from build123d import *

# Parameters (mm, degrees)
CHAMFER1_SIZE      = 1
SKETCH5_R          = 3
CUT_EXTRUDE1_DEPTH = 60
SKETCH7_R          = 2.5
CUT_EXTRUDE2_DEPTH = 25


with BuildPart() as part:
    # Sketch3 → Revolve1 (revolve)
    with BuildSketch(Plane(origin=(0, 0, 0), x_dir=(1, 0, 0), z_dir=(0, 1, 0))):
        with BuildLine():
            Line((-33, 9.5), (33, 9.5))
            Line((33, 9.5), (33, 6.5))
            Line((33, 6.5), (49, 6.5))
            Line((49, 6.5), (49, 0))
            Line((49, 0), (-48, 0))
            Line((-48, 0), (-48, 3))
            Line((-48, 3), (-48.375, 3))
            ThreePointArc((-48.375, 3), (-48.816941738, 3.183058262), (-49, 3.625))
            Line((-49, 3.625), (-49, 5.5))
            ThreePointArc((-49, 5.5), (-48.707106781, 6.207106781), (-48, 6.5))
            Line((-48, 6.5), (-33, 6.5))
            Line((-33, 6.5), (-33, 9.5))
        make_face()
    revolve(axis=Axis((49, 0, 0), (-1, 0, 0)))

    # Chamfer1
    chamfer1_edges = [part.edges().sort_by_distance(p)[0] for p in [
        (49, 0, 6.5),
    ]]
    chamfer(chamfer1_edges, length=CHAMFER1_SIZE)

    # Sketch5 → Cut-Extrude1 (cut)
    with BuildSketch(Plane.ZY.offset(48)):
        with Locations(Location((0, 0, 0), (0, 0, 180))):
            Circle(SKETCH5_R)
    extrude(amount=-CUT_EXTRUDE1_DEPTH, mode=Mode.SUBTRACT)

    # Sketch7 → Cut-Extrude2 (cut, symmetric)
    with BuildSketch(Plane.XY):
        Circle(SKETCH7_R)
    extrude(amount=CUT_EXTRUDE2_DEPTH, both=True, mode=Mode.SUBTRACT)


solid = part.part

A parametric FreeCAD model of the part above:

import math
import FreeCAD as App
import Part
import Sketcher
Q = App.Units.Quantity


def edges_at(feature, points):
    """Names of the edges that pass closest to the given points."""
    edges = feature.Shape.Edges
    near = lambda p: min(range(len(edges)), key=lambda i: edges[i].distToShape(Part.Vertex(*p))[0])
    return sorted({f"Edge{near(p) + 1}" for p in points})

doc = App.newDocument("Part")
body = doc.addObject("PartDesign::Body", "Body")

sketch1 = body.newObject("Sketcher::SketchObject", "Sketch")
sketch1.AttachmentSupport = (doc.getObject("XZ_Plane"), [""])
sketch1.MapMode = "FlatFace"
sketch1.addGeometry([
    Part.LineSegment(App.Vector(33, -9.5, 0), App.Vector(-33, -9.5, 0)),
    Part.LineSegment(App.Vector(-33, -9.5, 0), App.Vector(-33, -6.5, 0)),
    Part.LineSegment(App.Vector(-33, -6.5, 0), App.Vector(-48, -6.5, 0)),
    Part.ArcOfCircle(Part.Circle(App.Vector(-48, -5.5, 0), App.Vector(0, 0, 1), 1), math.radians(-180), math.radians(-90)),
    Part.LineSegment(App.Vector(-49, -5.5, 0), App.Vector(-49, -3.625, 0)),
    Part.ArcOfCircle(Part.Circle(App.Vector(-48.375, -3.625, 0), App.Vector(0, 0, 1), 0.625), math.radians(90), math.radians(180)),
    Part.LineSegment(App.Vector(-48.375, -3, 0), App.Vector(-48, -3, 0)),
    Part.LineSegment(App.Vector(-48, -3, 0), App.Vector(-48, 0, 0)),
    Part.LineSegment(App.Vector(-48, 0, 0), App.Vector(49, 0, 0)),
    Part.LineSegment(App.Vector(49, 0, 0), App.Vector(49, -6.5, 0)),
    Part.LineSegment(App.Vector(49, -6.5, 0), App.Vector(33, -6.5, 0)),
    Part.LineSegment(App.Vector(33, -6.5, 0), App.Vector(33, -9.5, 0)),
], False)
sketch1.addConstraint([
    Sketcher.Constraint("Coincident", 0, 2, 1, 1),
    Sketcher.Constraint("Coincident", 1, 2, 2, 1),
    Sketcher.Constraint("Tangent", 2, 2, 3, 2),
    Sketcher.Constraint("Tangent", 3, 1, 4, 1),
    Sketcher.Constraint("Tangent", 4, 2, 5, 2),
    Sketcher.Constraint("Tangent", 5, 1, 6, 1),
    Sketcher.Constraint("Coincident", 6, 2, 7, 1),
    Sketcher.Constraint("Coincident", 7, 2, 8, 1),
    Sketcher.Constraint("Coincident", 8, 2, 9, 1),
    Sketcher.Constraint("Coincident", 9, 2, 10, 1),
    Sketcher.Constraint("Coincident", 10, 2, 11, 1),
    Sketcher.Constraint("Coincident", 11, 2, 0, 1),
    Sketcher.Constraint("Horizontal", 0),
    Sketcher.Constraint("Vertical", 1),
    Sketcher.Constraint("Horizontal", 2),
    Sketcher.Constraint("Vertical", 4),
    Sketcher.Constraint("Horizontal", 6),
    Sketcher.Constraint("Vertical", 7),
    Sketcher.Constraint("Horizontal", 8),
    Sketcher.Constraint("Vertical", 9),
    Sketcher.Constraint("Horizontal", 10),
    Sketcher.Constraint("Vertical", 11),
    Sketcher.Constraint("Symmetric", 1, 2, 10, 2, -2),
    Sketcher.Constraint("PointOnObject", 7, 2, -1),
    Sketcher.Constraint("Vertical", 2, 2, 6, 2),
    Sketcher.Constraint("Equal", 1, 7),
    Sketcher.Constraint("Radius", 3, Q("1 mm")),
    Sketcher.Constraint("DistanceX", 0, 2, 0, 1, Q("66 mm")),
    Sketcher.Constraint("DistanceX", 2, 2, 2, 1, Q("15 mm")),
    Sketcher.Constraint("DistanceX", 8, 1, 8, 2, Q("97 mm")),
    Sketcher.Constraint("DistanceY", 1, 1, 1, 2, Q("3 mm")),
    Sketcher.Constraint("DistanceY", 9, 2, 9, 1, Q("6.5 mm")),
    Sketcher.Constraint("Radius", 5, Q("0.625 mm")),
])
revolution = body.newObject("PartDesign::Revolution", "Revolution")
revolution.Profile = sketch1
revolution.ReferenceAxis = (sketch1, ["H_Axis"])
revolution.Angle = 360
doc.recompute()

chamfer = body.newObject("PartDesign::Chamfer", "Chamfer")
chamfer.Base = (revolution, edges_at(revolution, [(49, 0, 6.5)]))
chamfer.Size = 1

sketch2 = body.newObject("Sketcher::SketchObject", "Sketch001")
sketch2.AttachmentSupport = (doc.getObject("YZ_Plane"), [""])
sketch2.MapMode = "FlatFace"
sketch2.AttachmentOffset = App.Placement(App.Vector(0, 0, -48), App.Rotation())
sketch2.addGeometry(Part.Circle(App.Vector(0, 0, 0), App.Vector(0, 0, 1), 3), False)
sketch2.addConstraint([
    Sketcher.Constraint("Coincident", 0, 3, -1, 1),
    Sketcher.Constraint("Diameter", 0, Q("6 mm")),
])
pocket1 = body.newObject("PartDesign::Pocket", "Pocket")
pocket1.Profile = sketch2
pocket1.Length = 60
pocket1.Reversed = True

sketch3 = body.newObject("Sketcher::SketchObject", "Sketch002")
sketch3.AttachmentSupport = (doc.getObject("XY_Plane"), [""])
sketch3.MapMode = "FlatFace"
sketch3.addGeometry(Part.Circle(App.Vector(0, 0, 0), App.Vector(0, 0, 1), 2.5), False)
sketch3.addConstraint([
    Sketcher.Constraint("Coincident", 0, 3, -1, 1),
    Sketcher.Constraint("Diameter", 0, Q("5 mm")),
])
pocket2 = body.newObject("PartDesign::Pocket", "Pocket001")
pocket2.Profile = sketch3
pocket2.Length = 50
pocket2.Midplane = True

doc.recompute()
